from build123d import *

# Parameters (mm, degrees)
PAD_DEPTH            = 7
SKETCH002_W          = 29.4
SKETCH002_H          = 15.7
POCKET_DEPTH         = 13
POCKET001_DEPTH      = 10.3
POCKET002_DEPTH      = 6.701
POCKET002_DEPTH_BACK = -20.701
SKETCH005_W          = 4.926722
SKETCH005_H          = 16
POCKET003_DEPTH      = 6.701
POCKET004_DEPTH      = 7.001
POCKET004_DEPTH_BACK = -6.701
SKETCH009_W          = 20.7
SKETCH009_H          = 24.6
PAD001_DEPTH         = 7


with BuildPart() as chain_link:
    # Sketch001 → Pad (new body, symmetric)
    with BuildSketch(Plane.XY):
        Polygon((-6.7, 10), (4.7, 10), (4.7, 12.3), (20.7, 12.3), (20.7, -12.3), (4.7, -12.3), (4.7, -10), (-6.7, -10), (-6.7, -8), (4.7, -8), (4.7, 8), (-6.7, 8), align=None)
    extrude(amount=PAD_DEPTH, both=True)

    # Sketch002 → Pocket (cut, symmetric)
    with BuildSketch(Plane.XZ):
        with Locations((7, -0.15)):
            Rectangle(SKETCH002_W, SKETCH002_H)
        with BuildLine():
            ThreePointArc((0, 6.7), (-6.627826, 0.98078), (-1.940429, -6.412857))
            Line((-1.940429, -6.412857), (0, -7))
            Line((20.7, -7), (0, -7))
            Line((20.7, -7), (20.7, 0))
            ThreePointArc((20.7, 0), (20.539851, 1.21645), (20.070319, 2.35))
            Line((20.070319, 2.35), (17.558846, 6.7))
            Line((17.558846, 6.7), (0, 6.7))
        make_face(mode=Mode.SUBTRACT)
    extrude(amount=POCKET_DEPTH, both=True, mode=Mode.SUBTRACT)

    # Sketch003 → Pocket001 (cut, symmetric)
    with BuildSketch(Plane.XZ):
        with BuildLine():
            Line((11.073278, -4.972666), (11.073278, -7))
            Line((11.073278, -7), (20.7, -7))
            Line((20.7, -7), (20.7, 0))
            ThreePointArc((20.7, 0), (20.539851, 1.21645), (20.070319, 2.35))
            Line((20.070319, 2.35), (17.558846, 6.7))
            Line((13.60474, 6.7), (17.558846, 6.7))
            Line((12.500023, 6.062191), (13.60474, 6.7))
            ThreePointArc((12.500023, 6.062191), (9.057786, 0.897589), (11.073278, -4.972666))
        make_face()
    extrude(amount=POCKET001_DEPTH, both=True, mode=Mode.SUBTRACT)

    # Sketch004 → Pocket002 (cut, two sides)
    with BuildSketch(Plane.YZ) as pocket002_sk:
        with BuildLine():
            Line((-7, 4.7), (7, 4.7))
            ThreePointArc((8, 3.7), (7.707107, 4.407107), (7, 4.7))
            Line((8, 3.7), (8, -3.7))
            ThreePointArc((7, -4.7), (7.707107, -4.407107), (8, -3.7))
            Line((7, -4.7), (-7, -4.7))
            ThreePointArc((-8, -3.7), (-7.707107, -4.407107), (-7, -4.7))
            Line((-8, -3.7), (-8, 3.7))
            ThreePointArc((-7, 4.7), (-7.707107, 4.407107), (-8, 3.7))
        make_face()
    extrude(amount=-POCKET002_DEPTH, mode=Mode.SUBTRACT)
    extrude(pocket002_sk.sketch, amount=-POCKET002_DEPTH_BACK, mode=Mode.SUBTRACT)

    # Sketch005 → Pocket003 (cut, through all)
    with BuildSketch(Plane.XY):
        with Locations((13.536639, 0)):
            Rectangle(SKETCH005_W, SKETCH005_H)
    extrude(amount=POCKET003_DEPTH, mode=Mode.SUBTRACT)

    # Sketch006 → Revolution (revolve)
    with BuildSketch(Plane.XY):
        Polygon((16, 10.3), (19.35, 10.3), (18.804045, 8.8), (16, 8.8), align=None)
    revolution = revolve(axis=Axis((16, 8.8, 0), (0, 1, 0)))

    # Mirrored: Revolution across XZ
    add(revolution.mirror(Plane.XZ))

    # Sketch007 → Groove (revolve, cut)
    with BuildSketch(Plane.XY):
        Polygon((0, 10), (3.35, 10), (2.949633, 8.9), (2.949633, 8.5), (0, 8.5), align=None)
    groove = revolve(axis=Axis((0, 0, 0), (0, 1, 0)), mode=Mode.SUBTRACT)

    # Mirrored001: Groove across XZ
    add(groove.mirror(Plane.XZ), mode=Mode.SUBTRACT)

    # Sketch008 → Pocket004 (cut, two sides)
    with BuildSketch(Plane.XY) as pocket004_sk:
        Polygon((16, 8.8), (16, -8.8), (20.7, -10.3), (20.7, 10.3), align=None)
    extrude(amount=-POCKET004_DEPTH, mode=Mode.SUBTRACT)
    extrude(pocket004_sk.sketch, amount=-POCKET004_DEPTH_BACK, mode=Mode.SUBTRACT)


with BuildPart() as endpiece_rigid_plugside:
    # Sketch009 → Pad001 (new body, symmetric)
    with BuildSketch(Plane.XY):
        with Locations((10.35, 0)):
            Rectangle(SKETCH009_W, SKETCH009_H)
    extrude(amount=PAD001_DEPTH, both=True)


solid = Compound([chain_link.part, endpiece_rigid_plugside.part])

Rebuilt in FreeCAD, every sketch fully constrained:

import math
import FreeCAD as App
import Part
import Sketcher
from FreeCAD import Vector
Q = App.Units.Quantity

doc = App.newDocument("Part")
params = doc.addObject("Spreadsheet::Sheet", "Params")
for row, (alias, value) in enumerate([
    ("sketch1_width", "16 mm"),
    ("sketch1_height", "2 mm"),
    ("sketch1_width2", "11.4 mm"),
    ("sketch1_height2", "2.3 mm"),
    ("pad1_length", "14 mm"),
    ("sketch2_radius", "6.7 mm"),
    ("sketch2_radius2", "4.700002 mm"),
    ("sketch2_height", "7 mm"),
    ("sketch2_width", "29.4 mm"),
    ("sketch2_width2", "20.7 mm"),
    ("pocket1_length", "26 mm"),
    ("sketch3_radius", "6.999999 mm"),
    ("sketch3_radius2", "4.700002 mm"),
    ("sketch3_height", "7 mm"),
    ("pocket2_length", "20.6 mm"),
    ("sketch4_radius", "0.999999 mm"),
    ("sketch4_width", "14 mm"),
    ("sketch4_height", "7.4 mm"),
    ("sketch5_height", "16 mm"),
    ("sketch6_height", "1.5 mm"),
    ("sketch6_width", "3.35 mm"),
    ("revolution_angle", "360 deg"),
    ("sketch7_height", "1.5 mm"),
    ("sketch7_height2", "0.4 mm"),
    ("sketch7_width", "3.35 mm"),
    ("groove_angle", "360 deg"),
    ("sketch8_height", "17.6 mm"),
    ("sketch8_height2", "20.6 mm"),
    ("sketch9_width", "20.7 mm"),
    ("sketch9_height", "24.6 mm"),
    ("pad2_length", "14 mm"),
], start=1):
    params.set(f"A{row}", alias)
    params.set(f"B{row}", "=" + value)
    params.setAlias(f"B{row}", alias)

body = doc.addObject("PartDesign::Body", "Body")

sketch1 = body.newObject("Sketcher::SketchObject", "Sketch")
sketch1.AttachmentSupport = (doc.getObject("XY_Plane"), [""])
sketch1.MapMode = "FlatFace"
sketch1.addGeometry([
    Part.LineSegment(Vector(4.7, 10, 0), Vector(-6.7, 10, 0)),
    Part.LineSegment(Vector(-6.7, 10, 0), Vector(-6.7, 8, 0)),
    Part.LineSegment(Vector(-6.7, 8, 0), Vector(4.7, 8, 0)),
    Part.LineSegment(Vector(4.7, 8, 0), Vector(4.7, -8, 0)),
    Part.LineSegment(Vector(4.7, -8, 0), Vector(-6.7, -8, 0)),
    Part.LineSegment(Vector(-6.7, -8, 0), Vector(-6.7, -10, 0)),
    Part.LineSegment(Vector(-6.7, -10, 0), Vector(4.7, -10, 0)),
    Part.LineSegment(Vector(4.7, -10, 0), Vector(4.7, -12.3, 0)),
    Part.LineSegment(Vector(4.7, -12.3, 0), Vector(20.7, -12.3, 0)),
    Part.LineSegment(Vector(20.7, -12.3, 0), Vector(20.7, 12.3, 0)),
    Part.LineSegment(Vector(20.7, 12.3, 0), Vector(4.7, 12.3, 0)),
    Part.LineSegment(Vector(4.7, 12.3, 0), Vector(4.7, 10, 0)),
], False)
sketch1.addConstraint([
    Sketcher.Constraint("Coincident", 0, 2, 1, 1),
    Sketcher.Constraint("Coincident", 1, 2, 2, 1),
    Sketcher.Constraint("Coincident", 2, 2, 3, 1),
    Sketcher.Constraint("Coincident", 3, 2, 4, 1),
    Sketcher.Constraint("Coincident", 4, 2, 5, 1),
    Sketcher.Constraint("Coincident", 5, 2, 6, 1),
    Sketcher.Constraint("Coincident", 6, 2, 7, 1),
    Sketcher.Constraint("Coincident", 7, 2, 8, 1),
    Sketcher.Constraint("Coincident", 8, 2, 9, 1),
    Sketcher.Constraint("Coincident", 9, 2, 10, 1),
    Sketcher.Constraint("Coincident", 10, 2, 11, 1),
    Sketcher.Constraint("Coincident", 11, 2, 0, 1),
    Sketcher.Constraint("Horizontal", 0),
    Sketcher.Constraint("Vertical", 1),
    Sketcher.Constraint("Horizontal", 2),
    Sketcher.Constraint("Vertical", 3),
    Sketcher.Constraint("Horizontal", 4),
    Sketcher.Constraint("Vertical", 5),
    Sketcher.Constraint("Horizontal", 6),
    Sketcher.Constraint("Vertical", 7),
    Sketcher.Constraint("Horizontal", 8),
    Sketcher.Constraint("Vertical", 9),
    Sketcher.Constraint("Horizontal", 10),
    Sketcher.Constraint("Vertical", 11),
    Sketcher.Constraint("Symmetric", 1, 2, 4, 2, -1),
    Sketcher.Constraint("Symmetric", 7, 2, 10, 2, -1),
    Sketcher.Constraint("Vertical", 3, 2, 6, 2),
    Sketcher.Constraint("Equal", 10, 3),
    Sketcher.Constraint("Equal", 1, 5),
    Sketcher.Constraint("DistanceX", 8, 1, 8, 2, 16.0),
    Sketcher.Constraint("DistanceY", 1, 2, 1, 1, 2.0),
    Sketcher.Constraint("DistanceX", 0, 2, 0, 1, 11.4),
    Sketcher.Constraint("DistanceY", 7, 2, 7, 1, 2.3),
    Sketcher.Constraint("DistanceX", 0, 2, -1, 1, 6.7),
])
sketch1.setExpression("Constraints[29]", "Params.sketch1_width")
sketch1.setExpression("Constraints[30]", "Params.sketch1_height")
sketch1.setExpression("Constraints[31]", "Params.sketch1_width2")
sketch1.setExpression("Constraints[32]", "Params.sketch1_height2")
pad1 = body.newObject("PartDesign::Pad", "Pad")
pad1.Profile = sketch1
pad1.setExpression("Length", "Params.pad1_length")
pad1.Midplane = True

sketch2 = body.newObject("Sketcher::SketchObject", "Sketch001")
sketch2.AttachmentSupport = (doc.getObject("XZ_Plane"), [""])
sketch2.MapMode = "FlatFace"
sketch2.addGeometry([
    Part.LineSegment(Vector(-7.7, 7.7, 0), Vector(-7.7, -8, 0)),
    Part.LineSegment(Vector(-7.7, -8, 0), Vector(21.7, -8, 0)),
    Part.LineSegment(Vector(21.7, -8, 0), Vector(21.7, 7.7, 0)),
    Part.LineSegment(Vector(21.7, 7.7, 0), Vector(-7.7, 7.7, 0)),
    Part.ArcOfCircle(Part.Circle(Vector(0, 0, 0), Vector(0, 0, 1), 6.7), math.radians(90), math.radians(253)),
    Part.LineSegment(Vector(0, 6.7, 0), Vector(17.6, 6.7, 0)),
    Part.LineSegment(Vector(17.6, 6.7, 0), Vector(20.1, 2.4, 0)),
    Part.ArcOfCircle(Part.Circle(Vector(16, 0, 0), Vector(0, 0, 1), 4.7), math.radians(0), math.radians(30)),
    Part.LineSegment(Vector(20.7, 0, 0), Vector(20.7, -7, 0)),
    Part.LineSegment(Vector(20.7, -7, 0), Vector(0, -7, 0)),
    Part.LineSegment(Vector(0, -7, 0), Vector(-1.9, -6.4, 0)),
], False)
sketch2.addConstraint([
    Sketcher.Constraint("Coincident", 0, 2, 1, 1),
    Sketcher.Constraint("Coincident", 1, 2, 2, 1),
    Sketcher.Constraint("Coincident", 2, 2, 3, 1),
    Sketcher.Constraint("Coincident", 3, 2, 0, 1),
    Sketcher.Constraint("Tangent", 4, 1, 5, 1),
    Sketcher.Constraint("Coincident", 5, 2, 6, 1),
    Sketcher.Constraint("Tangent", 6, 2, 7, 2),
    Sketcher.Constraint("Tangent", 7, 1, 8, 1),
    Sketcher.Constraint("Coincident", 8, 2, 9, 1),
    Sketcher.Constraint("Coincident", 9, 2, 10, 1),
    Sketcher.Constraint("Tangent", 10, 2, 4, 2),
    Sketcher.Constraint("Vertical", 0),
    Sketcher.Constraint("Horizontal", 1),
    Sketcher.Constraint("Vertical", 2),
    Sketcher.Constraint("Horizontal", 3),
    Sketcher.Constraint("Horizontal", 5),
    Sketcher.Constraint("Vertical", 8),
    Sketcher.Constraint("Horizontal", 9),
    Sketcher.Constraint("Coincident", 4, 3, -1, 1),
    Sketcher.Constraint("PointOnObject", 7, 3, -1),
    Sketcher.Constraint("PointOnObject", 9, 2, -2),
    Sketcher.Constraint("Radius", 4, 6.7),
    Sketcher.Constraint("Radius", 7, 4.700002),
    Sketcher.Constraint("DistanceY", 8, 2, 8, 1, 7.0),
    Sketcher.Constraint("Angle", 6, Q("-60.000007 deg")),
    Sketcher.Constraint("DistanceX", 1, 1, 1, 2, 29.4),
    Sketcher.Constraint("DistanceX", 9, 2, 9, 1, 20.7),
    Sketcher.Constraint("DistanceY", 0, 2, 0, 1, 15.7),
    Sketcher.Constraint("DistanceY", 0, 2, -1, 1, 8.0),
    Sketcher.Constraint("DistanceX", 7, 1, 2, 2, 1.0),
])
sketch2.setExpression("Constraints[21]", "Params.sketch2_radius")
sketch2.setExpression("Constraints[22]", "Params.sketch2_radius2")
sketch2.setExpression("Constraints[23]", "Params.sketch2_height")
sketch2.setExpression("Constraints[25]", "Params.sketch2_width")
sketch2.setExpression("Constraints[26]", "Params.sketch2_width2")
pocket1 = body.newObject("PartDesign::Pocket", "Pocket")
pocket1.Profile = sketch2
pocket1.setExpression("Length", "Params.pocket1_length")
pocket1.Midplane = True

sketch3 = body.newObject("Sketcher::SketchObject", "Sketch002")
sketch3.AttachmentSupport = (doc.getObject("XZ_Plane"), [""])
sketch3.MapMode = "FlatFace"
sketch3.addGeometry([
    Part.LineSegment(Vector(11.1, -5, 0), Vector(11.1, -7, 0)),
    Part.LineSegment(Vector(11.1, -7, 0), Vector(20.7, -7, 0)),
    Part.LineSegment(Vector(20.7, -7, 0), Vector(20.7, 0, 0)),
    Part.ArcOfCircle(Part.Circle(Vector(16, 0, 0), Vector(0, 0, 1), 4.7), math.radians(0), math.radians(30)),
    Part.LineSegment(Vector(20.1, 2.4, 0), Vector(17.6, 6.7, 0)),
    Part.LineSegment(Vector(17.6, 6.7, 0), Vector(13.6, 6.7, 0)),
    Part.LineSegment(Vector(13.6, 6.7, 0), Vector(12.5, 6.1, 0)),
    Part.ArcOfCircle(Part.Circle(Vector(16, 0, 0), Vector(0, 0, 1), 7), math.radians(120), math.radians(225)),
], False)
sketch3.addConstraint([
    Sketcher.Constraint("Coincident", 0, 2, 1, 1),
    Sketcher.Constraint("Coincident", 1, 2, 2, 1),
    Sketcher.Constraint("Tangent", 2, 2, 3, 1),
    Sketcher.Constraint("Tangent", 3, 2, 4, 1),
    Sketcher.Constraint("Coincident", 4, 2, 5, 1),
    Sketcher.Constraint("Coincident", 5, 2, 6, 1),
    Sketcher.Constraint("Coincident", 6, 2, 7, 1),
    Sketcher.Constraint("Coincident", 7, 2, 0, 1),
    Sketcher.Constraint("Vertical", 0),
    Sketcher.Constraint("Horizontal", 1),
    Sketcher.Constraint("Vertical", 2),
    Sketcher.Constraint("Horizontal", 5),
    Sketcher.Constraint("Coincident", 7, 3, 3, 3),
    Sketcher.Constraint("PointOnObject", 3, 3, -1),
    Sketcher.Constraint("Perpendicular", 4, 6),
    Sketcher.Constraint("Radius", 7, 6.999999),
    Sketcher.Constraint("Radius", 3, 4.700002),
    Sketcher.Constraint("DistanceY", 2, 1, 2, 2, 7.0),
    Sketcher.Constraint("Angle", 4, Q("119.999993 deg")),
    Sketcher.Constraint("DistanceX", -1, 1, 3, 3, 15.999998),
    Sketcher.Constraint("DistanceY", -1, 1, 4, 2, 6.7),
    Sketcher.Constraint("DistanceX", 1, 1, 1, 2, 9.626722),
    Sketcher.Constraint("DistanceY", -1, 1, 6, 2, 6.062191),
])
sketch3.setExpression("Constraints[15]", "Params.sketch3_radius")
sketch3.setExpression("Constraints[16]", "Params.sketch3_radius2")
sketch3.setExpression("Constraints[17]", "Params.sketch3_height")
pocket2 = body.newObject("PartDesign::Pocket", "Pocket001")
pocket2.Profile = sketch3
pocket2.setExpression("Length", "Params.pocket2_length")
pocket2.Midplane = True

sketch4 = body.newObject("Sketcher::SketchObject", "Sketch003")
sketch4.AttachmentSupport = (doc.getObject("YZ_Plane"), [""])
sketch4.MapMode = "FlatFace"
sketch4.addGeometry([
    Part.LineSegment(Vector(7, 4.7, 0), Vector(-7, 4.7, 0)),
    Part.ArcOfCircle(Part.Circle(Vector(-7, 3.7, 0), Vector(0, 0, 1), 1), math.radians(90), math.radians(180)),
    Part.LineSegment(Vector(-8, 3.7, 0), Vector(-8, -3.7, 0)),
    Part.ArcOfCircle(Part.Circle(Vector(-7, -3.7, 0), Vector(0, 0, 1), 1), math.radians(180), math.radians(270)),
    Part.LineSegment(Vector(-7, -4.7, 0), Vector(7, -4.7, 0)),
    Part.ArcOfCircle(Part.Circle(Vector(7, -3.7, 0), Vector(0, 0, 1), 1), math.radians(-90), math.radians(0)),
    Part.LineSegment(Vector(8, -3.7, 0), Vector(8, 3.7, 0)),
    Part.ArcOfCircle(Part.Circle(Vector(7, 3.7, 0), Vector(0, 0, 1), 1), math.radians(0), math.radians(90)),
], False)
sketch4.addConstraint([
    Sketcher.Constraint("Tangent", 0, 2, 1, 1),
    Sketcher.Constraint("Tangent", 1, 2, 2, 1),
    Sketcher.Constraint("Tangent", 2, 2, 3, 1),
    Sketcher.Constraint("Tangent", 3, 2, 4, 1),
    Sketcher.Constraint("Tangent", 4, 2, 5, 1),
    Sketcher.Constraint("Tangent", 5, 2, 6, 1),
    Sketcher.Constraint("Tangent", 6, 2, 7, 1),
    Sketcher.Constraint("Tangent", 7, 2, 0, 1),
    Sketcher.Constraint("Horizontal", 0),
    Sketcher.Constraint("Vertical", 2),
    Sketcher.Constraint("Horizontal", 4),
    Sketcher.Constraint("Vertical", 6),
    Sketcher.Constraint("Equal", 1, 3),
    Sketcher.Constraint("Equal", 3, 5),
    Sketcher.Constraint("Equal", 5, 7),
    Sketcher.Constraint("Symmetric", 1, 3, 5, 3, -1, 1),
    Sketcher.Constraint("Radius", 1, 0.999999),
    Sketcher.Constraint("DistanceX", 0, 2, 0, 1, 14.0),
    Sketcher.Constraint("DistanceY", 2, 2, 2, 1, 7.4),
])
sketch4.setExpression("Constraints[16]", "Params.sketch4_radius")
sketch4.setExpression("Constraints[17]", "Params.sketch4_width")
sketch4.setExpression("Constraints[18]", "Params.sketch4_height")
pocket3 = body.newObject("PartDesign::Pocket", "Pocket002")
pocket3.Profile = sketch4
pocket3.Type = "ThroughAll"
pocket3.Midplane = True

sketch5 = body.newObject("Sketcher::SketchObject", "Sketch004")
sketch5.AttachmentSupport = (doc.getObject("XY_Plane"), [""])
sketch5.MapMode = "FlatFace"
sketch5.addGeometry([
    Part.LineSegment(Vector(11.1, 8, 0), Vector(11.1, -8, 0)),
    Part.LineSegment(Vector(11.1, -8, 0), Vector(16, -8, 0)),
    Part.LineSegment(Vector(16, -8, 0), Vector(16, 8, 0)),
    Part.LineSegment(Vector(16, 8, 0), Vector(11.1, 8, 0)),
], False)
sketch5.addConstraint([
    Sketcher.Constraint("Coincident", 0, 2, 1, 1),
    Sketcher.Constraint("Coincident", 1, 2, 2, 1),
    Sketcher.Constraint("Coincident", 2, 2, 3, 1),
    Sketcher.Constraint("Coincident", 3, 2, 0, 1),
    Sketcher.Constraint("Vertical", 0),
    Sketcher.Constraint("Horizontal", 1),
    Sketcher.Constraint("Vertical", 2),
    Sketcher.Constraint("Horizontal", 3),
    Sketcher.Constraint("DistanceY", 0, 2, 0, 1, 16.0),
    Sketcher.Constraint("DistanceY", 0, 2, -1, 1, 8.0),
    Sketcher.Constraint("DistanceX", -1, 1, 1, 2, 16.0),
    Sketcher.Constraint("DistanceX", 1, 1, 1, 2, 4.926722),
])
sketch5.setExpression("Constraints[8]", "Params.sketch5_height")
pocket4 = body.newObject("PartDesign::Pocket", "Pocket003")
pocket4.Profile = sketch5
pocket4.Type = "ThroughAll"
pocket4.Reversed = True

sketch6 = body.newObject("Sketcher::SketchObject", "Sketch005")
sketch6.AttachmentSupport = (doc.getObject("XY_Plane"), [""])
sketch6.MapMode = "FlatFace"
sketch6.addGeometry([
    Part.LineSegment(Vector(19.4, 10.3, 0), Vector(16, 10.3, 0)),
    Part.LineSegment(Vector(16, 10.3, 0), Vector(16, 8.8, 0)),
    Part.LineSegment(Vector(16, 8.8, 0), Vector(18.8, 8.8, 0)),
    Part.LineSegment(Vector(18.8, 8.8, 0), Vector(19.4, 10.3, 0)),
], False)
sketch6.addGeometry(Part.LineSegment(Vector(16, 8.8, 0), Vector(16, 10.3, 0)), True)
sketch6.addConstraint([
    Sketcher.Constraint("Coincident", 0, 2, 1, 1),
    Sketcher.Constraint("Coincident", 1, 2, 2, 1),
    Sketcher.Constraint("Coincident", 2, 2, 3, 1),
    Sketcher.Constraint("Coincident", 3, 2, 0, 1),
    Sketcher.Constraint("Horizontal", 0),
    Sketcher.Constraint("Vertical", 1),
    Sketcher.Constraint("Horizontal", 2),
    Sketcher.Constraint("Vertical", 4),
    Sketcher.Constraint("Coincident", 4, 1, 1, 2),
    Sketcher.Constraint("Horizontal", 3, 2, 4, 2),
    Sketcher.Constraint("Angle", 3, Q("70.000012 deg")),
    Sketcher.Constraint("DistanceY", 1, 2, 1, 1, 1.5),
    Sketcher.Constraint("DistanceX", -1, 1, 0, 2, 16.0),
    Sketcher.Constraint("DistanceX", 0, 2, 0, 1, 3.35),
    Sketcher.Constraint("DistanceY", -1, 1, 0, 2, 10.3),
])
sketch6.setExpression("Constraints[11]", "Params.sketch6_height")
sketch6.setExpression("Constraints[13]", "Params.sketch6_width")
revolution = body.newObject("PartDesign::Revolution", "Revolution")
revolution.Profile = sketch6
revolution.ReferenceAxis = (sketch6, ["Axis0"])
revolution.setExpression("Angle", "Params.revolution_angle")
doc.recompute()

mirrored = body.newObject("PartDesign::Mirrored", "Mirrored")
mirrored.Originals = [revolution]
mirrored.MirrorPlane = (doc.getObject("XZ_Plane"), [""])
body.Tip = mirrored

sketch7 = body.newObject("Sketcher::SketchObject", "Sketch006")
sketch7.AttachmentSupport = (doc.getObject("XY_Plane"), [""])
sketch7.MapMode = "FlatFace"
sketch7.addGeometry([
    Part.LineSegment(Vector(3.35, 10, 0), Vector(0, 10, 0)),
    Part.LineSegment(Vector(0, 10, 0), Vector(0, 8.5, 0)),
    Part.LineSegment(Vector(0, 8.5, 0), Vector(2.95, 8.5, 0)),
    Part.LineSegment(Vector(2.95, 8.5, 0), Vector(2.95, 8.9, 0)),
    Part.LineSegment(Vector(2.95, 8.9, 0), Vector(3.35, 10, 0)),
], False)
sketch7.addConstraint([
    Sketcher.Constraint("Coincident", 0, 2, 1, 1),
    Sketcher.Constraint("Coincident", 1, 2, 2, 1),
    Sketcher.Constraint("Coincident", 2, 2, 3, 1),
    Sketcher.Constraint("Coincident", 3, 2, 4, 1),
    Sketcher.Constraint("Coincident", 4, 2, 0, 1),
    Sketcher.Constraint("Horizontal", 0),
    Sketcher.Constraint("Vertical", 1),
    Sketcher.Constraint("Horizontal", 2),
    Sketcher.Constraint("Vertical", 3),
    Sketcher.Constraint("PointOnObject", 0, 2, -2),
    Sketcher.Constraint("Angle", 4, Q("70.000012 deg")),
    Sketcher.Constraint("DistanceY", 1, 2, 1, 1, 1.5),
    Sketcher.Constraint("DistanceY", 3, 1, 3, 2, 0.4),
    Sketcher.Constraint("DistanceY", -1, 1, 0, 2, 10.0),
    Sketcher.Constraint("DistanceX", 0, 2, 0, 1, 3.35),
])
sketch7.setExpression("Constraints[11]", "Params.sketch7_height")
sketch7.setExpression("Constraints[12]", "Params.sketch7_height2")
sketch7.setExpression("Constraints[14]", "Params.sketch7_width")
groove = body.newObject("PartDesign::Groove", "Groove")
groove.Profile = sketch7
groove.ReferenceAxis = (sketch7, ["V_Axis"])
groove.setExpression("Angle", "Params.groove_angle")
doc.recompute()

mirrored2 = body.newObject("PartDesign::Mirrored", "Mirrored001")
mirrored2.Originals = [groove]
mirrored2.MirrorPlane = (doc.getObject("XZ_Plane"), [""])
body.Tip = mirrored2

sketch8 = body.newObject("Sketcher::SketchObject", "Sketch007")
sketch8.AttachmentSupport = (doc.getObject("XY_Plane"), [""])
sketch8.MapMode = "FlatFace"
sketch8.addGeometry([
    Part.LineSegment(Vector(16, 8.8, 0), Vector(16, -8.8, 0)),
    Part.LineSegment(Vector(16, -8.8, 0), Vector(20.7, -10.3, 0)),
    Part.LineSegment(Vector(20.7, -10.3, 0), Vector(20.7, 10.3, 0)),
    Part.LineSegment(Vector(20.7, 10.3, 0), Vector(16, 8.8, 0)),
], False)
sketch8.addConstraint([
    Sketcher.Constraint("Coincident", 0, 2, 1, 1),
    Sketcher.Constraint("Coincident", 1, 2, 2, 1),
    Sketcher.Constraint("Coincident", 2, 2, 3, 1),
    Sketcher.Constraint("Coincident", 3, 2, 0, 1),
    Sketcher.Constraint("Vertical", 0),
    Sketcher.Constraint("Vertical", 2),
    Sketcher.Constraint("Equal", 1, 3),
    Sketcher.Constraint("DistanceY", 0, 2, 0, 1, 17.6),
    Sketcher.Constraint("DistanceY", 2, 1, 2, 2, 20.6),
    Sketcher.Constraint("DistanceX", -1, 1, 0, 2, 16.0),
    Sketcher.Constraint("DistanceY", 0, 2, -1, 1, 8.8),
    Sketcher.Constraint("DistanceX", -1, 1, 1, 2, 20.7),
])
sketch8.setExpression("Constraints[7]", "Params.sketch8_height")
sketch8.setExpression("Constraints[8]", "Params.sketch8_height2")
pocket5 = body.newObject("PartDesign::Pocket", "Pocket004")
pocket5.Profile = sketch8
pocket5.Type = "ThroughAll"
pocket5.Midplane = True
body2 = doc.addObject("PartDesign::Body", "Body001")

sketch9 = body2.newObject("Sketcher::SketchObject", "Sketch008")
sketch9.AttachmentSupport = (doc.getObject("XY_Plane001"), [""])
sketch9.MapMode = "FlatFace"
sketch9.addGeometry([
    Part.LineSegment(Vector(0, 12, 0), Vector(0, -12, 0)),
    Part.LineSegment(Vector(0, -12, 0), Vector(21, -12, 0)),
    Part.LineSegment(Vector(21, -12, 0), Vector(21, 12, 0)),
    Part.LineSegment(Vector(21, 12, 0), Vector(0, 12, 0)),
], False)
sketch9.addConstraint([
    Sketcher.Constraint("Coincident", 0, 2, 1, 1),
    Sketcher.Constraint("Coincident", 1, 2, 2, 1),
    Sketcher.Constraint("Coincident", 2, 2, 3, 1),
    Sketcher.Constraint("Coincident", 3, 2, 0, 1),
    Sketcher.Constraint("Vertical", 0),
    Sketcher.Constraint("Horizontal", 1),
    Sketcher.Constraint("Vertical", 2),
    Sketcher.Constraint("Horizontal", 3),
    Sketcher.Constraint("Symmetric", 0, 2, 3, 2, -1, 1),
    Sketcher.Constraint("DistanceX", 1, 1, 1, 2, 20.7),
    Sketcher.Constraint("DistanceY", 0, 2, 0, 1, 24.6),
])
sketch9.setExpression("Constraints[9]", "Params.sketch9_width")
sketch9.setExpression("Constraints[10]", "Params.sketch9_height")
pad2 = body2.newObject("PartDesign::Pad", "Pad001")
pad2.Profile = sketch9
pad2.setExpression("Length", "Params.pad2_length")
pad2.Midplane = True

doc.recompute()
